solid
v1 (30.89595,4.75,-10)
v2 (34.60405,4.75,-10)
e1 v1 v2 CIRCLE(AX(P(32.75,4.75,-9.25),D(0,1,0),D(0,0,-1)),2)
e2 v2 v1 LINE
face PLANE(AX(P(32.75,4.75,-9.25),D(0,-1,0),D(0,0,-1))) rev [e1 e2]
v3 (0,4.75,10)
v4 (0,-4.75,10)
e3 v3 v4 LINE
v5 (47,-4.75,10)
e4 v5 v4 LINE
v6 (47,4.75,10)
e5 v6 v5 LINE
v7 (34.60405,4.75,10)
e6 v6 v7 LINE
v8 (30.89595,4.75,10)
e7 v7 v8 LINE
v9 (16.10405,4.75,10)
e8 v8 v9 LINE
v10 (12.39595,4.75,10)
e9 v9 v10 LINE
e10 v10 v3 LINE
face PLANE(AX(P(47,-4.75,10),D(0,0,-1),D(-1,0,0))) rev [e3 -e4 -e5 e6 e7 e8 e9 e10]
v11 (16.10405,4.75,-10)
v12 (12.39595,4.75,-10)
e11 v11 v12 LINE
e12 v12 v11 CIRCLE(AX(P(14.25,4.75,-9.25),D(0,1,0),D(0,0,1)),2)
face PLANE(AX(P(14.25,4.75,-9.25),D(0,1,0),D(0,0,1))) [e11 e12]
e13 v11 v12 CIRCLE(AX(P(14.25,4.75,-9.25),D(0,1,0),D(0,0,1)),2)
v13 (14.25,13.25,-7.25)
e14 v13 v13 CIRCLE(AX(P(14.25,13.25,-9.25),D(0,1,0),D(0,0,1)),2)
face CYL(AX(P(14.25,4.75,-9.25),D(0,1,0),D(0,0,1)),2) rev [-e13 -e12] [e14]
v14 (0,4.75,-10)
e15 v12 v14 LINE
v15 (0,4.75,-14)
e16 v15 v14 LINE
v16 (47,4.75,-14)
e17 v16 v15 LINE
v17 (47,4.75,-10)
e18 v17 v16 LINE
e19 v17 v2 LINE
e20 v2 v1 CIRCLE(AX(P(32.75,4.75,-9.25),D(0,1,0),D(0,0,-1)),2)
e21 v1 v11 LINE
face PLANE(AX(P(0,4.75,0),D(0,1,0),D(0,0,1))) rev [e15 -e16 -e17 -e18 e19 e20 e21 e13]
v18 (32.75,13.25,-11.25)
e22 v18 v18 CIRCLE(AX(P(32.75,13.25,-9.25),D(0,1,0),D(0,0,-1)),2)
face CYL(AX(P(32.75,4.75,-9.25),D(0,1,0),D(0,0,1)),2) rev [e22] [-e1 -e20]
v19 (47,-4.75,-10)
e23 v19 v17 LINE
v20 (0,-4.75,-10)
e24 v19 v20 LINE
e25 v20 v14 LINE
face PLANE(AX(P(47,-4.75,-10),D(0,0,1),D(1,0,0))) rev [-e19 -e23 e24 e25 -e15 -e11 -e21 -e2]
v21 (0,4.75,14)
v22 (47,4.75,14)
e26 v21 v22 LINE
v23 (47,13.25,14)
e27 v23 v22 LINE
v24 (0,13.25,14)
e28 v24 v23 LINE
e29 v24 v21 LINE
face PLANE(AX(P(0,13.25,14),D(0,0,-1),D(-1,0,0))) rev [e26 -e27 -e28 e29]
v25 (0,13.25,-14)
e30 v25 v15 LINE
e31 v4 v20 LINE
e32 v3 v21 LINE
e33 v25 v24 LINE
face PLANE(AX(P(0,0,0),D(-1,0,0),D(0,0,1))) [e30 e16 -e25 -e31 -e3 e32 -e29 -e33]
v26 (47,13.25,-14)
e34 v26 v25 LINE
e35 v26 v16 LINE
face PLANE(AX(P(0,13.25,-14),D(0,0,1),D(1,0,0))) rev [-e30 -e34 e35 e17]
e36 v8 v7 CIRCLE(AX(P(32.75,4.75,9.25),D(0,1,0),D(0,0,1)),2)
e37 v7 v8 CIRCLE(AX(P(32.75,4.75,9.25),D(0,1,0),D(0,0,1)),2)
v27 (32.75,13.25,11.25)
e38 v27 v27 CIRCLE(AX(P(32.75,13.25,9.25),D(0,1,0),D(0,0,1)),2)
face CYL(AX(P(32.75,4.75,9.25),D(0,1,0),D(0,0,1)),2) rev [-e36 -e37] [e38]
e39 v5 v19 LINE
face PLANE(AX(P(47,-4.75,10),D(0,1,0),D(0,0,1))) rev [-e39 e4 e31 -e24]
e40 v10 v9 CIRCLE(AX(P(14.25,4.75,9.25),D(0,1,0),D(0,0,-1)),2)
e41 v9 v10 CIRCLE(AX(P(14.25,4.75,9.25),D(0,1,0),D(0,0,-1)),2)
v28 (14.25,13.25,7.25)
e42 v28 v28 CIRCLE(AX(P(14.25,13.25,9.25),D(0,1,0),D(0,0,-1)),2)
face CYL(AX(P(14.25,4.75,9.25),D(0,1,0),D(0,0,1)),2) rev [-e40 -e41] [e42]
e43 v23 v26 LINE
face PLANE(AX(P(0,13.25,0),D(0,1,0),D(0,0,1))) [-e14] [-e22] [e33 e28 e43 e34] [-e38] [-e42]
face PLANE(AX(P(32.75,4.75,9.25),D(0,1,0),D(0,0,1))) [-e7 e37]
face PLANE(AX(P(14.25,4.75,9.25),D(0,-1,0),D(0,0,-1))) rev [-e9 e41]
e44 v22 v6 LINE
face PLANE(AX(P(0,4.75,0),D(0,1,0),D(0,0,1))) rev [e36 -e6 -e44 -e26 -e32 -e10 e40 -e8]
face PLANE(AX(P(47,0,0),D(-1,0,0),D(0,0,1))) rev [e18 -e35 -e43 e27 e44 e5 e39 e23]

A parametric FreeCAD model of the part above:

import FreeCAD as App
import Part
import Sketcher

V = App.Vector

doc = App.newDocument("Part")
body = doc.addObject("PartDesign::Body", "Body")

# Sketch on YZ plane
sketch1 = body.newObject("Sketcher::SketchObject", "Sketch")
sketch1.AttachmentSupport = (doc.getObject("YZ_Plane"), [""])
sketch1.MapMode = "FlatFace"
sketch1.addGeometry([
    Part.LineSegment(V(4.75, 10, 0), V(-4.75, 10, 0)),
    Part.LineSegment(V(-4.75, 10, 0), V(-4.75, -10, 0)),
    Part.LineSegment(V(-4.75, -10, 0), V(4.75, -10, 0)),
    Part.LineSegment(V(4.75, -10, 0), V(4.75, 10, 0)),
], False)
sketch1.addConstraint([
    Sketcher.Constraint("Coincident", 0, 2, 1, 1),
    Sketcher.Constraint("Coincident", 1, 2, 2, 1),
    Sketcher.Constraint("Coincident", 2, 2, 3, 1),
    Sketcher.Constraint("Coincident", 3, 2, 0, 1),
    Sketcher.Constraint("Horizontal", 0),
    Sketcher.Constraint("Vertical", 1),
    Sketcher.Constraint("Horizontal", 2),
    Sketcher.Constraint("Vertical", 3),
    Sketcher.Constraint("Symmetric", 0, 2, 2, 2, -1, 1),
    Sketcher.Constraint("DistanceY", 1, 2, 1, 1, 20.0),
    Sketcher.Constraint("DistanceX", 0, 2, 0, 1, 9.5),
])
pad1 = body.newObject("PartDesign::Pad", "Pad")
pad1.Profile = sketch1
pad1.Length = 47

# Sketch on XZ plane
sketch2 = body.newObject("Sketcher::SketchObject", "Sketch001")
sketch2.AttachmentSupport = (doc.getObject("XZ_Plane"), [""])
sketch2.MapMode = "FlatFace"
sketch2.AttachmentOffset = App.Placement(V(0, 0, -4.75), App.Rotation())
sketch2.addGeometry([
    Part.LineSegment(V(47, -14, 0), V(0, -14, 0)),
    Part.LineSegment(V(0, -14, 0), V(0, 14, 0)),
    Part.LineSegment(V(0, 14, 0), V(47, 14, 0)),
    Part.LineSegment(V(47, 14, 0), V(47, -14, 0)),
], False)
sketch2.addConstraint([
    Sketcher.Constraint("Coincident", 0, 2, 1, 1),
    Sketcher.Constraint("Coincident", 1, 2, 2, 1),
    Sketcher.Constraint("Coincident", 2, 2, 3, 1),
    Sketcher.Constraint("Coincident", 3, 2, 0, 1),
    Sketcher.Constraint("Horizontal", 0),
    Sketcher.Constraint("Vertical", 1),
    Sketcher.Constraint("Horizontal", 2),
    Sketcher.Constraint("Vertical", 3),
    Sketcher.Constraint("Symmetric", 0, 2, 1, 2, -1, 1),
    Sketcher.Constraint("DistanceX", 0, 2, 0, 1, 47.0),
    Sketcher.Constraint("DistanceY", 1, 1, 1, 2, 28.0),
])
pad2 = body.newObject("PartDesign::Pad", "Pad001")
pad2.Profile = sketch2
pad2.Length = 8.5
pad2.Reversed = True

# Sketch on XZ plane
sketch3 = body.newObject("Sketcher::SketchObject", "Sketch002")
sketch3.AttachmentSupport = (doc.getObject("XZ_Plane"), [""])
sketch3.MapMode = "FlatFace"
sketch3.AttachmentOffset = App.Placement(V(0, 0, -13.25), App.Rotation())
sketch3.addGeometry([
    Part.Circle(V(14.25, -9.25, 0), V(0, 0, 1), 2),
    Part.Circle(V(32.75, -9.25, 0), V(0, 0, 1), 2),
    Part.Circle(V(32.75, 9.25, 0), V(0, 0, 1), 2),
    Part.Circle(V(14.25, 9.25, 0), V(0, 0, 1), 2),
], False)
sketch3.addConstraint([
    Sketcher.Constraint("Equal", 0, 1),
    Sketcher.Constraint("Equal", 1, 2),
    Sketcher.Constraint("Equal", 2, 3),
    Sketcher.Constraint("Symmetric", 1, 3, 2, 3, -1),
    Sketcher.Constraint("Symmetric", 0, 3, 3, 3, -1),
    Sketcher.Constraint("Horizontal", 0, 3, 1, 3),
    Sketcher.Constraint("Diameter", 0, 4.0),
    Sketcher.Constraint("DistanceX", 0, 3, 1, 3, 18.5),
    Sketcher.Constraint("DistanceY", 1, 3, 2, 3, 18.5),
    Sketcher.Constraint("DistanceX", -1, 1, 0, 3, 14.25),
])
pocket1 = body.newObject("PartDesign::Pocket", "Pocket")
pocket1.Profile = sketch3
pocket1.Length = 8.5
pocket1.Reversed = True

doc.recompute()
